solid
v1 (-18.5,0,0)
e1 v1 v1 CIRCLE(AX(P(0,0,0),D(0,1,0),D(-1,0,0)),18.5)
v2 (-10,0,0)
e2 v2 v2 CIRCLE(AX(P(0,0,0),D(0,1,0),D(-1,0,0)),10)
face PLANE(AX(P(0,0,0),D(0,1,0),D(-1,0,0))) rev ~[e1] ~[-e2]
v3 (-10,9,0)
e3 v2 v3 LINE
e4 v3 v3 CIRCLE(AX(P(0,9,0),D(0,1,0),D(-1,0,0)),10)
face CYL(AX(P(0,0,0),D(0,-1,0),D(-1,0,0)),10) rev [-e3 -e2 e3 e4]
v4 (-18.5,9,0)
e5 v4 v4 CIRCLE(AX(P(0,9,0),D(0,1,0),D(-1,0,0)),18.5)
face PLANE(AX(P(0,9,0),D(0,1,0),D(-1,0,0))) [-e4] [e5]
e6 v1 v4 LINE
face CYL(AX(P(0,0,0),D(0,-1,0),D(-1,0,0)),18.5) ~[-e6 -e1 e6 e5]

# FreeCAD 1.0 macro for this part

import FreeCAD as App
import Part
import Sketcher
from FreeCAD import Vector
Q = App.Units.Quantity

doc = App.newDocument("Part")
body = doc.addObject("PartDesign::Body", "Body")

# Sketch on XZ plane
sketch1 = body.newObject("Sketcher::SketchObject", "Sketch")
sketch1.AttachmentSupport = (doc.getObject("XZ_Plane"), [""])
sketch1.MapMode = "FlatFace"
sketch1.addGeometry([
    Part.Circle(Vector(0, 0, 0), Vector(0, 0, 1), 18.5),
    Part.Circle(Vector(0, 0, 0), Vector(0, 0, 1), 10),
], False)
sketch1.addConstraint([
    Sketcher.Constraint("Coincident", 0, 3, -1, 1),
    Sketcher.Constraint("Coincident", 1, 3, -1, 1),
    Sketcher.Constraint("Diameter", 0, Q("37 mm")),
    Sketcher.Constraint("Diameter", 1, Q("20 mm")),
])
pad1 = body.newObject("PartDesign::Pad", "Pad")
pad1.Profile = sketch1
pad1.Length = 9
pad1.Reversed = True

doc.recompute()
